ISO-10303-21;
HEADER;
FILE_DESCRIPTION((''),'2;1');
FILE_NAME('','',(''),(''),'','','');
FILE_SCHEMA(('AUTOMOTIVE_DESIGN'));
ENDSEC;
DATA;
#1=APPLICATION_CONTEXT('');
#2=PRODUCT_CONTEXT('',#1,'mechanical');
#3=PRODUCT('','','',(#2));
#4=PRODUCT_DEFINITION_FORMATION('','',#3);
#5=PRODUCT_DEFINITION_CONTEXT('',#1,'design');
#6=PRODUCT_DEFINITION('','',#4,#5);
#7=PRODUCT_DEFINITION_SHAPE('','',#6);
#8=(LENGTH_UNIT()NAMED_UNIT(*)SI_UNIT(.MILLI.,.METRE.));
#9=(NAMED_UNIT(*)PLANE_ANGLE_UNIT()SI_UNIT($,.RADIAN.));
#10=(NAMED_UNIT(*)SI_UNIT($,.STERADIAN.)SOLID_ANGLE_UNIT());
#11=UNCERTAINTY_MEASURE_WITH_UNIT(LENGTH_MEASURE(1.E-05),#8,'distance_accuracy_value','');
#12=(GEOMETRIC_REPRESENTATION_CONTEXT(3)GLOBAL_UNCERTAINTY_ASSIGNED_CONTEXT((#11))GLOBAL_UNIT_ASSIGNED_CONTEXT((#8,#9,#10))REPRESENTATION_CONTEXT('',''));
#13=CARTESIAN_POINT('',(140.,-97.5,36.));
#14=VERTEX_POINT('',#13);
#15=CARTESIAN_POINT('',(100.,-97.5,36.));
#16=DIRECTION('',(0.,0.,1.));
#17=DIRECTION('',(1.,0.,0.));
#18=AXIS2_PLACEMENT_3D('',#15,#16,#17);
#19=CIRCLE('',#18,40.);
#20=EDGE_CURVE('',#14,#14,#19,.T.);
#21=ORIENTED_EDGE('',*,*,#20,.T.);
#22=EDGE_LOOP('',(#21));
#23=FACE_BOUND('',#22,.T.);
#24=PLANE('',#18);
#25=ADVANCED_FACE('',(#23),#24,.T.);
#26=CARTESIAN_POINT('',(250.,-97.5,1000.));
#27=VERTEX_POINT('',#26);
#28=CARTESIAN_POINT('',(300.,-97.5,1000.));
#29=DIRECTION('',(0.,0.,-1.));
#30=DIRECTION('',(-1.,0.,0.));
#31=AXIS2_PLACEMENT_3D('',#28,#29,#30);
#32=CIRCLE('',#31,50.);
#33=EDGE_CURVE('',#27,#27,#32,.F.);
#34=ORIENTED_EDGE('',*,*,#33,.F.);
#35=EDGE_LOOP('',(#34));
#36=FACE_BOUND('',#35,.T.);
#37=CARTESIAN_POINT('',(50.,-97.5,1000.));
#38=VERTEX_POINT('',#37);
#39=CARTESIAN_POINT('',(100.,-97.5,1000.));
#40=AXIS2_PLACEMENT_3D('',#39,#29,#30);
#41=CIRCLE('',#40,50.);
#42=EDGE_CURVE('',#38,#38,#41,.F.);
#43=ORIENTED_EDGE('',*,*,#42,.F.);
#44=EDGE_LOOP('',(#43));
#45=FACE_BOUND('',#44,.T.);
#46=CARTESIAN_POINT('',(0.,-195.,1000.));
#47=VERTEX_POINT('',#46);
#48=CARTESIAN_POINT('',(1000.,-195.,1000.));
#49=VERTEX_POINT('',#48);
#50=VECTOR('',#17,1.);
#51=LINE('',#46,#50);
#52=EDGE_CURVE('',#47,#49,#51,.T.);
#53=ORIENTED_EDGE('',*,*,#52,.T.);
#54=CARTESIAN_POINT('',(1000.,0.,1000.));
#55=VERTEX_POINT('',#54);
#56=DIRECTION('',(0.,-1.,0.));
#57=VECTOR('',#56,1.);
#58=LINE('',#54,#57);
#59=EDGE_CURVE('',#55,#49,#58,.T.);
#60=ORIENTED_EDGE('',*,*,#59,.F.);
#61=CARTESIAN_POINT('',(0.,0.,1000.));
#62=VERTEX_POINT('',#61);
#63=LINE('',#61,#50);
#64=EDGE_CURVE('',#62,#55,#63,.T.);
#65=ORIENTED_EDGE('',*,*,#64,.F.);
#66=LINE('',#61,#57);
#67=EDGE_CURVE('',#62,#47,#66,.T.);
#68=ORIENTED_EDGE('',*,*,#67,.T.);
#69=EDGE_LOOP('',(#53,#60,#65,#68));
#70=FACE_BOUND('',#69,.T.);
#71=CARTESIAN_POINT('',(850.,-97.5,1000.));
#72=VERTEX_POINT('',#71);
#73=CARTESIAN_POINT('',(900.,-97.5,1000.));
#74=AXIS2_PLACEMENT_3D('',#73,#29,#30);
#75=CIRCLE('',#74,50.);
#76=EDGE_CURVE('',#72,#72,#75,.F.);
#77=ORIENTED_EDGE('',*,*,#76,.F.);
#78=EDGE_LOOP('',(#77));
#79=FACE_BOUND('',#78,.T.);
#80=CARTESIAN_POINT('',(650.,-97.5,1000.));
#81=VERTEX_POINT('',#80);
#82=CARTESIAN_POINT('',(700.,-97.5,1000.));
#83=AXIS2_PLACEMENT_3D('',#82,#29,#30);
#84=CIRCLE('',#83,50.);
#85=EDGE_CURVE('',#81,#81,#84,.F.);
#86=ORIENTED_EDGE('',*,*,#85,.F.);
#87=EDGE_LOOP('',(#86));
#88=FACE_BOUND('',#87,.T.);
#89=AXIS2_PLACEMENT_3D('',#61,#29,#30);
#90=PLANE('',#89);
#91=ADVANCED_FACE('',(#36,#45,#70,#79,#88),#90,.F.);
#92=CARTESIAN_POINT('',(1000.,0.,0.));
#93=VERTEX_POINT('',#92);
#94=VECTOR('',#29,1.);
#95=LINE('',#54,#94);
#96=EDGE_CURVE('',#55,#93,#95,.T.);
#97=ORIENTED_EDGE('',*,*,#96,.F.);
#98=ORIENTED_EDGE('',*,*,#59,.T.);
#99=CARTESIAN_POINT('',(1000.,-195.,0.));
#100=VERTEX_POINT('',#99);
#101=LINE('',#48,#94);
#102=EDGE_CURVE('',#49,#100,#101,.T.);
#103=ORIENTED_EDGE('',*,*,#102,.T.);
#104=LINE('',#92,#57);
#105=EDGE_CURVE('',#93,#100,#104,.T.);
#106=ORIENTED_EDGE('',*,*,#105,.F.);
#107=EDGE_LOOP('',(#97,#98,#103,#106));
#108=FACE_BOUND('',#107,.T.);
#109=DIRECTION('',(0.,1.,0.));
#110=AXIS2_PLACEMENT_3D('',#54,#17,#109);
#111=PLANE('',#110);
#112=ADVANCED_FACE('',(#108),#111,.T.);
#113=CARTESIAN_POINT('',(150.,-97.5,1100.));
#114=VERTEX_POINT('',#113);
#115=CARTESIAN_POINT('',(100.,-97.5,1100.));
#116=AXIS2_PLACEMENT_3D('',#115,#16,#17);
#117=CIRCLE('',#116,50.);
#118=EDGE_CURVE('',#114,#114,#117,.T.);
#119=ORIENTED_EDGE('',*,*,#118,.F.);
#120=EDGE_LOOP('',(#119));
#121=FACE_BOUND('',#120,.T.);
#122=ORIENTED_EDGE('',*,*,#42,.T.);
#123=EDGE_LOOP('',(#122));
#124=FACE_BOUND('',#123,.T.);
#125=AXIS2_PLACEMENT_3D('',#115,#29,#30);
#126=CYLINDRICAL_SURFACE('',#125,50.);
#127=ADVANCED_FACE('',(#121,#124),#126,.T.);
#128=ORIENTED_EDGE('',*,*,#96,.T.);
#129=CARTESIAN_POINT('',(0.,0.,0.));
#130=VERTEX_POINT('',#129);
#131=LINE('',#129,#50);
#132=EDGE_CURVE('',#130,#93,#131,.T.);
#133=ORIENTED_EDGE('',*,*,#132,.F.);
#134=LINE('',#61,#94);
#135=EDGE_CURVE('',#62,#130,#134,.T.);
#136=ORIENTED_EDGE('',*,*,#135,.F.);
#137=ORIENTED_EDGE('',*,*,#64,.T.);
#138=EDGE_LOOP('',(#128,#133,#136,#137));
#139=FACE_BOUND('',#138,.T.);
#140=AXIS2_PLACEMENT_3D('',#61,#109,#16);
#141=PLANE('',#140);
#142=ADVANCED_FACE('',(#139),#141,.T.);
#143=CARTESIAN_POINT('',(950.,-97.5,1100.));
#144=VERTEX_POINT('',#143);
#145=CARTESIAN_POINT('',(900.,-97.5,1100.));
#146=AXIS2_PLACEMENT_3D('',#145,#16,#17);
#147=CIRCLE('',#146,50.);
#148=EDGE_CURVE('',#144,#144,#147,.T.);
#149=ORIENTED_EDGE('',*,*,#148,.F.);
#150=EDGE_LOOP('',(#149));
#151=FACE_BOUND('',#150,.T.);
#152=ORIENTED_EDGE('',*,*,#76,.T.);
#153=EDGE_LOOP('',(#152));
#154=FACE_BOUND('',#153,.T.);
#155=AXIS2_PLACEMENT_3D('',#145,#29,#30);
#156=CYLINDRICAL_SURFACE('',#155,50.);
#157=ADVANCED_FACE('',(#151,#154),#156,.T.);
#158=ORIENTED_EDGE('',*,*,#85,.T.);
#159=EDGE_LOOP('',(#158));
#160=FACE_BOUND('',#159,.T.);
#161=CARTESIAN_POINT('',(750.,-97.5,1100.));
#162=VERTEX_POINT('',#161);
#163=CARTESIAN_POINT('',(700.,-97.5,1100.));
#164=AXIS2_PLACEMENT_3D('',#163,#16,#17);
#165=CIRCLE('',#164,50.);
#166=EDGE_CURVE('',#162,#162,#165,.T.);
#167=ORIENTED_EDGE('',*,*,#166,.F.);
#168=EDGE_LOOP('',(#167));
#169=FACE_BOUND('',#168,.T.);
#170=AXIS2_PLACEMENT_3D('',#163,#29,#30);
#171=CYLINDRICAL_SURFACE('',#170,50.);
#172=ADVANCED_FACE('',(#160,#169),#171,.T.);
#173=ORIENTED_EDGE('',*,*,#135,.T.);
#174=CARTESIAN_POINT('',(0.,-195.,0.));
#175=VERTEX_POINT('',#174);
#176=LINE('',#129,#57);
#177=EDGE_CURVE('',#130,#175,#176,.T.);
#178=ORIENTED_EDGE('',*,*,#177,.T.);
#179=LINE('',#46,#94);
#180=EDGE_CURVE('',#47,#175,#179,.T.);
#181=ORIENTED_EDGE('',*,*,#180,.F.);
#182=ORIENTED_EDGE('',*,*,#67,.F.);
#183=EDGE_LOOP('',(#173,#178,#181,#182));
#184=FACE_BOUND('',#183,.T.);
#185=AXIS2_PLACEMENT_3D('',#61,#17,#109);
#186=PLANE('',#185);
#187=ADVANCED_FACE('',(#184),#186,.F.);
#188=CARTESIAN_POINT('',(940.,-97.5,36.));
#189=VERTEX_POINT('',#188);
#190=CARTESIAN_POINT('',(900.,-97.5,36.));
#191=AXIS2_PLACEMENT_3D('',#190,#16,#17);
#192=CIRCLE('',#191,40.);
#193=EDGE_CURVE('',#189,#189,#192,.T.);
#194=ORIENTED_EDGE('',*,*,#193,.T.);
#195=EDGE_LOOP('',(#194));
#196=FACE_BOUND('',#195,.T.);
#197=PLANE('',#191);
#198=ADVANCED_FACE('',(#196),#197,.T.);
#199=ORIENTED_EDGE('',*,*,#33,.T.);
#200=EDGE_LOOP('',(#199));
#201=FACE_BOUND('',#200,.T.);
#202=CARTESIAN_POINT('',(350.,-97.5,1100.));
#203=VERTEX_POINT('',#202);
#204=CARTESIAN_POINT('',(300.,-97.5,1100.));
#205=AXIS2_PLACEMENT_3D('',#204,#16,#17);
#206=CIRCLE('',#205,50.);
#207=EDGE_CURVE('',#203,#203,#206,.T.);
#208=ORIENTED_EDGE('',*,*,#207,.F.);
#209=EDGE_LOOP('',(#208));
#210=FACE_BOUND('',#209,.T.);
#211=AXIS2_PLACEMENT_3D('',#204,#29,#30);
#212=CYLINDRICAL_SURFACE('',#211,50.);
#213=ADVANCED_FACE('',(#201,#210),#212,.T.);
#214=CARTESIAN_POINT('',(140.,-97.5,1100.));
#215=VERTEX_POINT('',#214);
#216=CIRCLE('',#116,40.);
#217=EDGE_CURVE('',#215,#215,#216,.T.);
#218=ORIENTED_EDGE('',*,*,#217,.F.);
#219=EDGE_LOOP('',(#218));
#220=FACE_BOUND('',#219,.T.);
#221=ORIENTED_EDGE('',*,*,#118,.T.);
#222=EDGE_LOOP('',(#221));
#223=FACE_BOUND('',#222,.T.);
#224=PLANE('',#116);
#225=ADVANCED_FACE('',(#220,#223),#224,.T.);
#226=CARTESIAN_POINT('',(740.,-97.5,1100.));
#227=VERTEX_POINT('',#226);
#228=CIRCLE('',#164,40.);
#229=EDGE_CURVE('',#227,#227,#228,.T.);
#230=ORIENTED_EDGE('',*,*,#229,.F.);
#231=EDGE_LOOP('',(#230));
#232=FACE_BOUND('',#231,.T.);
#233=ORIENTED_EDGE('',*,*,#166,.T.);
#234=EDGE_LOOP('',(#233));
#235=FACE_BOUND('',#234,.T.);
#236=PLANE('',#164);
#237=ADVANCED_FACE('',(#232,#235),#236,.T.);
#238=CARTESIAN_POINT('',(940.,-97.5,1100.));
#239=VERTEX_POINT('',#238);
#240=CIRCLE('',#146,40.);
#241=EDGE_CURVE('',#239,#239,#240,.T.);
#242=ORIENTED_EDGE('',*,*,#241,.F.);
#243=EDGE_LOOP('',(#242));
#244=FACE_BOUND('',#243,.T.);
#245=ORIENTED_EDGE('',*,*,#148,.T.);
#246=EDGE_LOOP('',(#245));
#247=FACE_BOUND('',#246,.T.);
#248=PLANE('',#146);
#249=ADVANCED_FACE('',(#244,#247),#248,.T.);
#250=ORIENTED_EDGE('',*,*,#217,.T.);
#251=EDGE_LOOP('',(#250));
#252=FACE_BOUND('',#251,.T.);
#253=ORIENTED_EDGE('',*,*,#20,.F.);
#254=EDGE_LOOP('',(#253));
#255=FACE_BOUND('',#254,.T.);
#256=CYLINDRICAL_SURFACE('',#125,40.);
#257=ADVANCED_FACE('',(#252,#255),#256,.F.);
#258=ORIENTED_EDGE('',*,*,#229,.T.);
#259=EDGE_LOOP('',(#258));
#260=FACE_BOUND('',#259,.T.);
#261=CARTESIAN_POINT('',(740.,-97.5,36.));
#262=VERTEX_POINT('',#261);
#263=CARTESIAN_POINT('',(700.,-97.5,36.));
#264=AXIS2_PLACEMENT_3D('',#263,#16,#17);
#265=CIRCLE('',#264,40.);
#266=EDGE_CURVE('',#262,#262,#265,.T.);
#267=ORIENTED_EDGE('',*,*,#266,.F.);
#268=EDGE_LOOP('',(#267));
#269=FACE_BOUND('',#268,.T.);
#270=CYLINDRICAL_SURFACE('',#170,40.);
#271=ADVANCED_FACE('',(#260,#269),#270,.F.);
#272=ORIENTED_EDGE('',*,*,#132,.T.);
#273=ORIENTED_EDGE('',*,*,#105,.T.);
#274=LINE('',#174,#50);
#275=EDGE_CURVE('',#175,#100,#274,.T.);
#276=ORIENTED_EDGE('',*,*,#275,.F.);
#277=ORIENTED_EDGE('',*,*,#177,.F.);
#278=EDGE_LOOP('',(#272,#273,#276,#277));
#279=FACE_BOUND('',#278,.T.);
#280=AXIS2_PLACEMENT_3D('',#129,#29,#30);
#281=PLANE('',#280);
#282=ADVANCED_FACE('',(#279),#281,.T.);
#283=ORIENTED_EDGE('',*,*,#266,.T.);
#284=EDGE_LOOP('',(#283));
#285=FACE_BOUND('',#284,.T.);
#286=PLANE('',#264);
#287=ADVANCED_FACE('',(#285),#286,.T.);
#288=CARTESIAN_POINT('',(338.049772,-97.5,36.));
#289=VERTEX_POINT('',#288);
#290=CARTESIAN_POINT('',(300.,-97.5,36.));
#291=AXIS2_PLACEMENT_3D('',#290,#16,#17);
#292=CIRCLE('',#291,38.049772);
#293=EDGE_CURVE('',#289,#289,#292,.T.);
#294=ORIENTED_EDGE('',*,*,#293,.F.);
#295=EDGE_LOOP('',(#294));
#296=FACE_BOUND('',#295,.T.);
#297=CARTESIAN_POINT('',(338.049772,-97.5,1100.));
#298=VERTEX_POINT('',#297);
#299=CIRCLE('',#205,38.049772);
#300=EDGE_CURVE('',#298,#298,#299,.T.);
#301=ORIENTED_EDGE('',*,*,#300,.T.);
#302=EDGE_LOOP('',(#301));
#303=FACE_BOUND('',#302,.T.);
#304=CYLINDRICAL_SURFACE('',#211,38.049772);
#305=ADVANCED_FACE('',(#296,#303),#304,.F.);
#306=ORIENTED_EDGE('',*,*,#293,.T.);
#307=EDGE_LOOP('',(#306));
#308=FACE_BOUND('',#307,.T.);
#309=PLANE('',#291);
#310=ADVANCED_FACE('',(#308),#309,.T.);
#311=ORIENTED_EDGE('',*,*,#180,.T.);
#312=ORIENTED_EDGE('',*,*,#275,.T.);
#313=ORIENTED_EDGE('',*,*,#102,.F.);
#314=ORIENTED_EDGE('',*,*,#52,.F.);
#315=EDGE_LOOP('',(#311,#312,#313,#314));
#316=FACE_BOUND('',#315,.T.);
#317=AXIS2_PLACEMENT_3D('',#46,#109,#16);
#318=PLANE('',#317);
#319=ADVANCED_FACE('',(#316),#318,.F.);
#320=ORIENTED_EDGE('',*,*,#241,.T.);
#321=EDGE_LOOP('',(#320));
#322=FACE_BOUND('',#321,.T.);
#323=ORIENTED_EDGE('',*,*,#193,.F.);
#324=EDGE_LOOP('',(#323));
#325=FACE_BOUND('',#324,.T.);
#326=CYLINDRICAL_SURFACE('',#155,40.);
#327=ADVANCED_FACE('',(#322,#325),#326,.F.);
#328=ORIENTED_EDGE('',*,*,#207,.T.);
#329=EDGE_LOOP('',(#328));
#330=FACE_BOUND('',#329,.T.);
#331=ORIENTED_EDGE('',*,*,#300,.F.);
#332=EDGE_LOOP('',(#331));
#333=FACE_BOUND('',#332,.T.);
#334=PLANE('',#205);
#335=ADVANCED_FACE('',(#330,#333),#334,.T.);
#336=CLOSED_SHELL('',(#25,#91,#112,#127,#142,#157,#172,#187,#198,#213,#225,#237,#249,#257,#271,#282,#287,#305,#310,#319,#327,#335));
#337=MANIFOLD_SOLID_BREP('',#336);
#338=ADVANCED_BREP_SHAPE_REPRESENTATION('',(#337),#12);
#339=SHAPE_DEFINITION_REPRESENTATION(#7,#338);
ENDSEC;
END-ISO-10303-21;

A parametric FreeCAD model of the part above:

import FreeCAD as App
import Part
import Sketcher

V = App.Vector

doc = App.newDocument("Part")
body = doc.addObject("PartDesign::Body", "Body")

# Sketch on XY plane
sketch1 = body.newObject("Sketcher::SketchObject", "Sketch")
sketch1.AttachmentSupport = (doc.getObject("XY_Plane"), [""])
sketch1.MapMode = "FlatFace"
sketch1.addGeometry([
    Part.LineSegment(V(0, 0, 0), V(0, -195, 0)),
    Part.LineSegment(V(0, -195, 0), V(1000, -195, 0)),
    Part.LineSegment(V(1000, -195, 0), V(1000, 0, 0)),
    Part.LineSegment(V(1000, 0, 0), V(0, 0, 0)),
], False)
sketch1.addConstraint([
    Sketcher.Constraint("Coincident", 0, 2, 1, 1),
    Sketcher.Constraint("Coincident", 1, 2, 2, 1),
    Sketcher.Constraint("Coincident", 2, 2, 3, 1),
    Sketcher.Constraint("Coincident", 3, 2, 0, 1),
    Sketcher.Constraint("Vertical", 0),
    Sketcher.Constraint("Horizontal", 1),
    Sketcher.Constraint("Vertical", 2),
    Sketcher.Constraint("Horizontal", 3),
    Sketcher.Constraint("Coincident", 3, 2, -1, 1),
    Sketcher.Constraint("DistanceX", 1, 1, 1, 2, 1000.0),
    Sketcher.Constraint("DistanceY", 0, 2, 0, 1, 195.0),
])
pad1 = body.newObject("PartDesign::Pad", "Pad")
pad1.Profile = sketch1
pad1.Length = 1000

# Sketch on XY plane
sketch2 = body.newObject("Sketcher::SketchObject", "Sketch001")
sketch2.AttachmentSupport = (doc.getObject("XY_Plane"), [""])
sketch2.MapMode = "FlatFace"
sketch2.AttachmentOffset = App.Placement(V(0, 0, 1000), App.Rotation())
sketch2.addGeometry([
    Part.Circle(V(100, -98, 0), V(0, 0, 1), 50),  # 0
    Part.Circle(V(100, -98, 0), V(0, 0, 1), 40),  # 1
    Part.Circle(V(300, -98, 0), V(0, 0, 1), 50),  # 2
    Part.Circle(V(300, -98, 0), V(0, 0, 1), 38),  # 3
    Part.Circle(V(700, -98, 0), V(0, 0, 1), 50),  # 4
    Part.Circle(V(700, -98, 0), V(0, 0, 1), 40),  # 5
    Part.Circle(V(900, -98, 0), V(0, 0, 1), 50),  # 6
    Part.Circle(V(900, -98, 0), V(0, 0, 1), 40),  # 7
], False)
sketch2.addConstraint([
    Sketcher.Constraint("Coincident", 1, 3, 0, 3),
    Sketcher.Constraint("Coincident", 3, 3, 2, 3),
    Sketcher.Constraint("Coincident", 5, 3, 4, 3),
    Sketcher.Constraint("Coincident", 7, 3, 6, 3),
    Sketcher.Constraint("Equal", 0, 2),
    Sketcher.Constraint("Equal", 2, 4),
    Sketcher.Constraint("Equal", 1, 5),
    Sketcher.Constraint("Equal", 4, 6),
    Sketcher.Constraint("Equal", 5, 7),
    Sketcher.Constraint("Horizontal", 1, 3, 2, 3),
    Sketcher.Constraint("Horizontal", 3, 3, 4, 3),
    Sketcher.Constraint("Horizontal", 5, 3, 6, 3),
    Sketcher.Constraint("Diameter", 0, 100.0),
    Sketcher.Constraint("Diameter", 1, 80.0),
    Sketcher.Constraint("DistanceX", -1, 1, 0, 3, 100.0),
    Sketcher.Constraint("DistanceX", -1, 1, 2, 3, 300.0),
    Sketcher.Constraint("DistanceX", -1, 1, 4, 3, 700.0),
    Sketcher.Constraint("DistanceX", -1, 1, 6, 3, 900.0),
    Sketcher.Constraint("DistanceY", 0, 3, -1, 1, 97.5),
    Sketcher.Constraint("Diameter", 3, 76.099543),
])
pad2 = body.newObject("PartDesign::Pad", "Pad001")
pad2.Profile = sketch2
pad2.Length = 100

# Sketch on XY plane
sketch3 = body.newObject("Sketcher::SketchObject", "Sketch002")
sketch3.AttachmentSupport = (doc.getObject("XY_Plane"), [""])
sketch3.MapMode = "FlatFace"
sketch3.AttachmentOffset = App.Placement(V(0, 0, 36), App.Rotation())
sketch3.addGeometry([
    Part.Circle(V(100, -98, 0), V(0, 0, 1), 40),
    Part.Circle(V(300, -98, 0), V(0, 0, 1), 38),
    Part.Circle(V(700, -98, 0), V(0, 0, 1), 40),
    Part.Circle(V(900, -98, 0), V(0, 0, 1), 40),
], False)
sketch3.addConstraint([
    Sketcher.Constraint("Equal", 0, 2),
    Sketcher.Constraint("Equal", 2, 3),
    Sketcher.Constraint("Horizontal", 0, 3, 1, 3),
    Sketcher.Constraint("Horizontal", 1, 3, 2, 3),
    Sketcher.Constraint("Horizontal", 2, 3, 3, 3),
    Sketcher.Constraint("Diameter", 0, 80.0),
    Sketcher.Constraint("DistanceX", -1, 1, 0, 3, 100.0),
    Sketcher.Constraint("DistanceX", -1, 1, 1, 3, 300.0),
    Sketcher.Constraint("DistanceX", -1, 1, 2, 3, 700.0),
    Sketcher.Constraint("DistanceX", -1, 1, 3, 3, 900.0),
    Sketcher.Constraint("DistanceY", 0, 3, -1, 1, 97.5),
    Sketcher.Constraint("Diameter", 1, 76.099543),
])
pocket1 = body.newObject("PartDesign::Pocket", "Pocket")
pocket1.Profile = sketch3
pocket1.Length = 964
pocket1.Reversed = True

doc.recompute()
